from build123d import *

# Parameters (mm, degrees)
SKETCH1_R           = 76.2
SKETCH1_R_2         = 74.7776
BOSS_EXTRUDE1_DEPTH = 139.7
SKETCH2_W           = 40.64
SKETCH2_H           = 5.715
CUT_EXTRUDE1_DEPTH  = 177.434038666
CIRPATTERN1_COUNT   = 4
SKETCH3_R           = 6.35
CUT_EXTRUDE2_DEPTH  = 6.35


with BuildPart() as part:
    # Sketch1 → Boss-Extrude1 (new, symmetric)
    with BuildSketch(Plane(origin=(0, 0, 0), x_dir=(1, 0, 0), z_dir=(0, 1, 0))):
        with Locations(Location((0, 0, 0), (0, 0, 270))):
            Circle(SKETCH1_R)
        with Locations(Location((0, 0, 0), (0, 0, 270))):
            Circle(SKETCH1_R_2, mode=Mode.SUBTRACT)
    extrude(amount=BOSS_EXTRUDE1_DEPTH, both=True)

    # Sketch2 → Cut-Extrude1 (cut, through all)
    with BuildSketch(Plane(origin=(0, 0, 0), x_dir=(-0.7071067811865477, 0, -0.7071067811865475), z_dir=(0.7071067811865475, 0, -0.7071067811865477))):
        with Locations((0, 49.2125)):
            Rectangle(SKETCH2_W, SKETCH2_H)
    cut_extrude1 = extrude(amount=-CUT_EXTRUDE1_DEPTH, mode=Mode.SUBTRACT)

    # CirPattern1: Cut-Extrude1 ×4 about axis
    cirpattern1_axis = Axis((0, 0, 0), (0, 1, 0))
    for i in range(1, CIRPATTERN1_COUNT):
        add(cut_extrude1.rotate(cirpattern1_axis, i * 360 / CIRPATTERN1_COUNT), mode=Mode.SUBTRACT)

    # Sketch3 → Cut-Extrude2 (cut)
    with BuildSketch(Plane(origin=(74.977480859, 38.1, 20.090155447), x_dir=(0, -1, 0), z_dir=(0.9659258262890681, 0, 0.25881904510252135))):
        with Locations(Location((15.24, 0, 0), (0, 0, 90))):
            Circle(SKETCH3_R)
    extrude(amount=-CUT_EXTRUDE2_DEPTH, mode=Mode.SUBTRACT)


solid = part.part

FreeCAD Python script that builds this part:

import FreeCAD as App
import Part
import Sketcher

V = App.Vector
Q = App.Units.Quantity

doc = App.newDocument("Part")
body = doc.addObject("PartDesign::Body", "Body")

# Sketch on XZ plane
sketch1 = body.newObject("Sketcher::SketchObject", "Sketch")
sketch1.AttachmentSupport = (doc.getObject("XZ_Plane"), [""])
sketch1.MapMode = "FlatFace"
sketch1.addGeometry(Part.Circle(V(0, 0, 0), V(0, 0, 1), 76.2), False)
sketch1.addGeometry(Part.Circle(V(0, 0, 0), V(0, 0, 1), 74.7776), False)
sketch1.addConstraint(Sketcher.Constraint("Coincident", 0, 3, -1, 1))
sketch1.addConstraint(Sketcher.Constraint("Coincident", 1, 3, -1, 1))
sketch1.addConstraint(Sketcher.Constraint("Diameter", 0, Q("6 in")))
sketch1.addConstraint(Sketcher.Constraint("Diameter", 1, Q("5.888 in")))
pad1 = body.newObject("PartDesign::Pad", "Pad")
pad1.Profile = sketch1
pad1.Length = Q("11 in")
pad1.Midplane = True

# Sketch on an angled plane
sketch2 = body.newObject("Sketcher::SketchObject", "Sketch001")
sketch2.Placement = App.Placement(V(0, 0, 0), App.Rotation(V(-0.707106781, 0, -0.707106781), V(0, 0.999999999, 0), V(0.707106781, 0, -0.707106781), "ZXY"))
sketch2.addGeometry(Part.LineSegment(V(-20.32, 52.07, 0), V(-20.32, 46.355, 0)), False)
sketch2.addGeometry(Part.LineSegment(V(-20.32, 46.355, 0), V(20.32, 46.355, 0)), False)
sketch2.addGeometry(Part.LineSegment(V(20.32, 46.355, 0), V(20.32, 52.07, 0)), False)
sketch2.addGeometry(Part.LineSegment(V(20.32, 52.07, 0), V(-20.32, 52.07, 0)), False)
sketch2.addConstraint(Sketcher.Constraint("Coincident", 0, 2, 1, 1))
sketch2.addConstraint(Sketcher.Constraint("Coincident", 1, 2, 2, 1))
sketch2.addConstraint(Sketcher.Constraint("Coincident", 2, 2, 3, 1))
sketch2.addConstraint(Sketcher.Constraint("Coincident", 3, 2, 0, 1))
sketch2.addConstraint(Sketcher.Constraint("Vertical", 0))
sketch2.addConstraint(Sketcher.Constraint("Horizontal", 1))
sketch2.addConstraint(Sketcher.Constraint("Vertical", 2))
sketch2.addConstraint(Sketcher.Constraint("Horizontal", 3))
sketch2.addConstraint(Sketcher.Constraint("DistanceX", 1, 1, 1, 2, Q("1.6 in")))
sketch2.addConstraint(Sketcher.Constraint("DistanceX", 0, 2, -1, 1, Q("0.8 in")))
sketch2.addConstraint(Sketcher.Constraint("DistanceY", 0, 2, 0, 1, Q("0.225 in")))
sketch2.addConstraint(Sketcher.Constraint("DistanceY", -1, 1, 2, 2, Q("2.05 in")))
pocket1 = body.newObject("PartDesign::Pocket", "Pocket")
pocket1.Profile = sketch2
pocket1.Type = "ThroughAll"
doc.recompute()

polarpattern = body.newObject("PartDesign::PolarPattern", "PolarPattern")
polarpattern.Originals = [pocket1]
polarpattern.Axis = (doc.getObject("Y_Axis"), [""])
polarpattern.Angle = 360
polarpattern.Occurrences = 4
body.Tip = polarpattern

# Sketch on an angled plane
sketch3 = body.newObject("Sketcher::SketchObject", "Sketch002")
sketch3.Placement = App.Placement(V(74.977481, 38.1, 20.090155), App.Rotation(V(0, -1, 0), V(0.258819045, 0, -0.965925826), V(0.965925826, 0, 0.258819045), "ZXY"))
sketch3.addGeometry(Part.Circle(V(15.24, 0, 0), V(0, 0, 1), 6.35), False)
sketch3.addConstraint(Sketcher.Constraint("PointOnObject", 0, 3, -1))
sketch3.addConstraint(Sketcher.Constraint("Diameter", 0, Q("0.5 in")))
sketch3.addConstraint(Sketcher.Constraint("DistanceX", -1, 1, 0, 3, Q("0.6 in")))
pocket2 = body.newObject("PartDesign::Pocket", "Pocket001")
pocket2.Profile = sketch3
pocket2.Length = Q("0.25 in")

doc.recompute()
